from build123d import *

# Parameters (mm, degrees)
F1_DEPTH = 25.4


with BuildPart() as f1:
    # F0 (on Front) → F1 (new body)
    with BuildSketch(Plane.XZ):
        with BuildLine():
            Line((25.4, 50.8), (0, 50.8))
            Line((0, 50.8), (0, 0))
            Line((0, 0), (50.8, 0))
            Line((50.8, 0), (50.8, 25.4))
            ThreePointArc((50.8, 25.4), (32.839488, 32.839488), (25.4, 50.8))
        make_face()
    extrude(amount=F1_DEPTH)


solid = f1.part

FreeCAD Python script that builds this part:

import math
import FreeCAD as App
import Part
import Sketcher
Q = App.Units.Quantity

doc = App.newDocument("Part")
body = doc.addObject("PartDesign::Body", "Body")

# Sketch on XZ plane
sketch1 = doc.addObject("Sketcher::SketchObject", "Sketch")
body.addObject(sketch1)
sketch1.AttachmentSupport = (doc.XZ_Plane, [""])
sketch1.MapMode = "FlatFace"
sketch1.addGeometry(Part.LineSegment(App.Vector(25, 51, 0), App.Vector(0, 51, 0)), False)
sketch1.addGeometry(Part.LineSegment(App.Vector(0, 51, 0), App.Vector(0, 0, 0)), False)
sketch1.addGeometry(Part.LineSegment(App.Vector(0, 0, 0), App.Vector(51, 0, 0)), False)
sketch1.addGeometry(Part.LineSegment(App.Vector(51, 0, 0), App.Vector(51, 25, 0)), False)
sketch1.addGeometry(Part.ArcOfCircle(Part.Circle(App.Vector(51, 51, 0), App.Vector(0, 0, 1), 25), math.radians(-180), math.radians(-90)), False)
sketch1.addConstraint(Sketcher.Constraint("Coincident", 0, 2, 1, 1))
sketch1.addConstraint(Sketcher.Constraint("Coincident", 1, 2, 2, 1))
sketch1.addConstraint(Sketcher.Constraint("Coincident", 2, 2, 3, 1))
sketch1.addConstraint(Sketcher.Constraint("Coincident", 3, 2, 4, 2))
sketch1.addConstraint(Sketcher.Constraint("Coincident", 4, 1, 0, 1))
sketch1.addConstraint(Sketcher.Constraint("Horizontal", 0))
sketch1.addConstraint(Sketcher.Constraint("Vertical", 1))
sketch1.addConstraint(Sketcher.Constraint("Horizontal", 2))
sketch1.addConstraint(Sketcher.Constraint("Vertical", 3))
sketch1.addConstraint(Sketcher.Constraint("Coincident", 1, 2, -1, 1))
sketch1.addConstraint(Sketcher.Constraint("Horizontal", 4, 3, 0, 2))
sketch1.addConstraint(Sketcher.Constraint("Vertical", 4, 3, 2, 2))
sketch1.addConstraint(Sketcher.Constraint("Equal", 2, 1))
sketch1.addConstraint(Sketcher.Constraint("Radius", 4, Q("1 in")))
sketch1.addConstraint(Sketcher.Constraint("DistanceX", 0, 2, 0, 1, Q("1 in")))
pad1 = doc.addObject("PartDesign::Pad", "Pad")
body.addObject(pad1)
pad1.Profile = sketch1
pad1.Length = Q("1 in")

doc.recompute()
